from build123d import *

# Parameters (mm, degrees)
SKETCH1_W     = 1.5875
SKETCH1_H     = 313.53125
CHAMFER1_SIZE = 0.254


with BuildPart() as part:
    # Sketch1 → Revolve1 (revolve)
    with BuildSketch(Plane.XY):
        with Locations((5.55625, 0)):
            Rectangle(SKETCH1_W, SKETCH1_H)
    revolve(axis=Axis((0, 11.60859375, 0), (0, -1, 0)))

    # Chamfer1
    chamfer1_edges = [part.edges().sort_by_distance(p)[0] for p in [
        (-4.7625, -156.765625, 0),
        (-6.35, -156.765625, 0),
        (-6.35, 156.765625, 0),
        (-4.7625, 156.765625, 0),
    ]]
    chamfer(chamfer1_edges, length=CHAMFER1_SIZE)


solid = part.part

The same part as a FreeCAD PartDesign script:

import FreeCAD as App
import Part
import Sketcher
Q = App.Units.Quantity


def edges_at(feature, points):
    """Names of the edges that pass closest to the given points."""
    edges = feature.Shape.Edges
    near = lambda p: min(range(len(edges)), key=lambda i: edges[i].distToShape(Part.Vertex(*p))[0])
    return sorted({f"Edge{near(p) + 1}" for p in points})


def add_polygon(sketch, points):
    """Adds a closed chain of lines whose ends are joined by coincident constraints."""
    first, n = sketch.GeometryCount, len(points)
    for a, b in zip(points, points[1:] + points[:1]):
        sketch.addGeometry(Part.LineSegment(App.Vector(*a, 0), App.Vector(*b, 0)), False)
    for i in range(n):
        sketch.addConstraint(Sketcher.Constraint("Coincident", first + i, 2, first + (i + 1) % n, 1))

doc = App.newDocument("Part")
body = doc.addObject("PartDesign::Body", "Body")

sketch1 = body.newObject("Sketcher::SketchObject", "Sketch")
sketch1.AttachmentSupport = (doc.getObject("XY_Plane"), [""])
sketch1.MapMode = "FlatFace"
add_polygon(sketch1, [(4.8, 156.8), (4.8, -156.8), (6.3, -156.8), (6.3, 156.8)])
sketch1.addConstraint(Sketcher.Constraint("Vertical", 0))
sketch1.addConstraint(Sketcher.Constraint("Horizontal", 1))
sketch1.addConstraint(Sketcher.Constraint("Vertical", 2))
sketch1.addConstraint(Sketcher.Constraint("Horizontal", 3))
sketch1.addConstraint(Sketcher.Constraint("DistanceX", 1, 1, 1, 2, Q("0.0625 in")))
sketch1.addConstraint(Sketcher.Constraint("DistanceY", 0, 2, 0, 1, Q("12.34375 in")))
sketch1.addConstraint(Sketcher.Constraint("DistanceX", -1, 1, 1, 2, Q("0.25 in")))
sketch1.addConstraint(Sketcher.Constraint("DistanceY", 0, 2, -1, 1, Q("6.171875 in")))
revolution = body.newObject("PartDesign::Revolution", "Revolution")
revolution.Profile = sketch1
revolution.ReferenceAxis = (sketch1, ["V_Axis"])
revolution.Angle = 360
doc.recompute()

chamfer = body.newObject("PartDesign::Chamfer", "Chamfer")
chamfer.Base = (revolution, edges_at(revolution, [
    (-4.763, -156.766, 0),
    (-6.35, -156.766, 0),
    (-6.35, 156.766, 0),
    (-4.763, 156.766, 0),
]))
chamfer.Size = Q("0.01 in")

doc.recompute()
